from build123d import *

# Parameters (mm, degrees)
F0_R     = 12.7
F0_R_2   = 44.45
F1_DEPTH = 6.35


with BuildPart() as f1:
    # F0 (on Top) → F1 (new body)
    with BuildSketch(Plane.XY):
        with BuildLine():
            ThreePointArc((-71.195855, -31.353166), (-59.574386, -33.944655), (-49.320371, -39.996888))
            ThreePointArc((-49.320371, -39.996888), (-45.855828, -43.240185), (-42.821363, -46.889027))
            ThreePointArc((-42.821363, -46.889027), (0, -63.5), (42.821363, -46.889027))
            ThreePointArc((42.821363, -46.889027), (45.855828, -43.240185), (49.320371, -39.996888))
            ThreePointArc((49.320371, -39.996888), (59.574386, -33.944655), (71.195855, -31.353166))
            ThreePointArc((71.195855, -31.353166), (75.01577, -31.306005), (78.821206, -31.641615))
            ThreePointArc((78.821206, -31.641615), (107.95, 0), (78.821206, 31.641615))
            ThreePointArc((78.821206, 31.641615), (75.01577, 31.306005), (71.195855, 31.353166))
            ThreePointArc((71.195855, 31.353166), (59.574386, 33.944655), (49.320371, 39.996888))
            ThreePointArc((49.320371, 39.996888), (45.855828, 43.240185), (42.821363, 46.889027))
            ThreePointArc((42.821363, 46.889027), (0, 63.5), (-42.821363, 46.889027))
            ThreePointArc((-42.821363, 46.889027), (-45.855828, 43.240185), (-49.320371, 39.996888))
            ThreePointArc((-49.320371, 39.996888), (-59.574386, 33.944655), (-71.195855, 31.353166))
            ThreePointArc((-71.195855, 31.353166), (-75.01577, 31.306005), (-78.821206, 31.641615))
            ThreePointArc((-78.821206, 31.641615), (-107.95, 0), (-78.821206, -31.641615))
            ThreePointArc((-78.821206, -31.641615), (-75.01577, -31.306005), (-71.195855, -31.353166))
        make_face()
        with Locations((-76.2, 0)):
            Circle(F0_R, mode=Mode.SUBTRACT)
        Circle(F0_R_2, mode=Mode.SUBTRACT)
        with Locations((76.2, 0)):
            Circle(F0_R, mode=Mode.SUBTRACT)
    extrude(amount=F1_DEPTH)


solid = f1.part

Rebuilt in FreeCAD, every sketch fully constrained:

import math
import FreeCAD as App
import Part
import Sketcher
Q = App.Units.Quantity

doc = App.newDocument("Part")
params = doc.addObject("Spreadsheet::Sheet", "Params")
for row, (alias, value) in enumerate([
    ("sketch1_diameter", "1 in"),
    ("sketch1_diameter2", "1 in"),
    ("sketch1_diameter3", "3.5 in"),
    ("sketch1_radius", "2.5 in"),
    ("sketch1_radius2", "2.5 in"),
    ("pad1_length", "0.25 in"),
], start=1):
    params.set(f"A{row}", alias)
    params.set(f"B{row}", "=" + value)
    params.setAlias(f"B{row}", alias)

body = doc.addObject("PartDesign::Body", "Body")

# Sketch on XY plane
sketch1 = doc.addObject("Sketcher::SketchObject", "Sketch")
body.addObject(sketch1)
sketch1.AttachmentSupport = (doc.XY_Plane, [""])
sketch1.MapMode = "FlatFace"
sketch1.addGeometry(Part.ArcOfCircle(Part.Circle(App.Vector(-73.575566, -69.378765, 0), App.Vector(0, 0, 1), 38.099989), math.radians(50.459798), math.radians(86.418996)), False)
sketch1.addGeometry(Part.ArcOfCircle(Part.Circle(App.Vector(-73.575573, -69.378782, 0), App.Vector(0, 0, 1), 38.100007), math.radians(36.177035), math.radians(50.459806)), False)
sketch1.addGeometry(Part.ArcOfCircle(Part.Circle(App.Vector(0, -0.000001, 0), App.Vector(0, 0, 1), 63.499999), math.radians(-132.403863), math.radians(-47.596137)), False)
sketch1.addGeometry(Part.ArcOfCircle(Part.Circle(App.Vector(73.575573, -69.378782, 0), App.Vector(0, 0, 1), 38.100007), math.radians(129.540194), math.radians(143.822965)), False)
sketch1.addGeometry(Part.ArcOfCircle(Part.Circle(App.Vector(73.575566, -69.378765, 0), App.Vector(0, 0, 1), 38.099989), math.radians(93.581004), math.radians(129.540202)), False)
sketch1.addGeometry(Part.ArcOfCircle(Part.Circle(App.Vector(73.57557, -69.378699, 0), App.Vector(0, 0, 1), 38.099924), math.radians(82.086322), math.radians(93.581016)), False)
sketch1.addGeometry(Part.ArcOfCircle(Part.Circle(App.Vector(76.2, 0, 0), App.Vector(0, 0, 1), 31.75), math.radians(-85.264404), math.radians(85.264404)), False)
sketch1.addGeometry(Part.ArcOfCircle(Part.Circle(App.Vector(73.57557, 69.378699, 0), App.Vector(0, 0, 1), 38.099924), math.radians(-93.581016), math.radians(-82.086322)), False)
sketch1.addGeometry(Part.ArcOfCircle(Part.Circle(App.Vector(73.575566, 69.378765, 0), App.Vector(0, 0, 1), 38.099989), math.radians(-129.540202), math.radians(-93.581004)), False)
sketch1.addGeometry(Part.ArcOfCircle(Part.Circle(App.Vector(73.575573, 69.378782, 0), App.Vector(0, 0, 1), 38.100007), math.radians(-143.822965), math.radians(-129.540194)), False)
sketch1.addGeometry(Part.ArcOfCircle(Part.Circle(App.Vector(0, 0.000001, 0), App.Vector(0, 0, 1), 63.499999), math.radians(47.596137), math.radians(132.403863)), False)
sketch1.addGeometry(Part.ArcOfCircle(Part.Circle(App.Vector(-73.575573, 69.378782, 0), App.Vector(0, 0, 1), 38.100007), math.radians(-50.459806), math.radians(-36.177035)), False)
sketch1.addGeometry(Part.ArcOfCircle(Part.Circle(App.Vector(-73.575566, 69.378765, 0), App.Vector(0, 0, 1), 38.099989), math.radians(-86.418996), math.radians(-50.459798)), False)
sketch1.addGeometry(Part.ArcOfCircle(Part.Circle(App.Vector(-73.57557, 69.378699, 0), App.Vector(0, 0, 1), 38.099924), math.radians(-97.913678), math.radians(-86.418984)), False)
sketch1.addGeometry(Part.ArcOfCircle(Part.Circle(App.Vector(-76.2, 0, 0), App.Vector(0, 0, 1), 31.75), math.radians(94.735596), math.radians(265.264404)), False)
sketch1.addGeometry(Part.ArcOfCircle(Part.Circle(App.Vector(-73.57557, -69.378699, 0), App.Vector(0, 0, 1), 38.099924), math.radians(86.418984), math.radians(97.913678)), False)
sketch1.addGeometry(Part.Circle(App.Vector(-76.2, 0, 0), App.Vector(0, 0, 1), 12.7), False)
sketch1.addGeometry(Part.Circle(App.Vector(0, 0, 0), App.Vector(0, 0, 1), 44.45), False)
sketch1.addGeometry(Part.Circle(App.Vector(76.2, 0, 0), App.Vector(0, 0, 1), 12.7), False)
sketch1.addConstraint(Sketcher.Constraint("Coincident", 0, 1, 1, 2))
sketch1.addConstraint(Sketcher.Constraint("Coincident", 1, 1, 2, 1))
sketch1.addConstraint(Sketcher.Constraint("Coincident", 2, 2, 3, 2))
sketch1.addConstraint(Sketcher.Constraint("Coincident", 3, 1, 4, 2))
sketch1.addConstraint(Sketcher.Constraint("Coincident", 4, 1, 5, 2))
sketch1.addConstraint(Sketcher.Constraint("Coincident", 5, 1, 6, 1))
sketch1.addConstraint(Sketcher.Constraint("Coincident", 6, 2, 7, 2))
sketch1.addConstraint(Sketcher.Constraint("Coincident", 7, 1, 8, 2))
sketch1.addConstraint(Sketcher.Constraint("Coincident", 8, 1, 9, 2))
sketch1.addConstraint(Sketcher.Constraint("Coincident", 9, 1, 10, 1))
sketch1.addConstraint(Sketcher.Constraint("Coincident", 10, 2, 11, 2))
sketch1.addConstraint(Sketcher.Constraint("Coincident", 11, 1, 12, 2))
sketch1.addConstraint(Sketcher.Constraint("Coincident", 12, 1, 13, 2))
sketch1.addConstraint(Sketcher.Constraint("Coincident", 13, 1, 14, 1))
sketch1.addConstraint(Sketcher.Constraint("Coincident", 14, 2, 15, 2))
sketch1.addConstraint(Sketcher.Constraint("Coincident", 15, 1, 0, 2))
sketch1.addConstraint(Sketcher.Constraint("Coincident", 2, 3, -1, 1))
sketch1.addConstraint(Sketcher.Constraint("Coincident", 10, 3, -1, 1))
sketch1.addConstraint(Sketcher.Constraint("Coincident", 17, 3, -1, 1))
sketch1.addConstraint(Sketcher.Constraint("Coincident", 16, 3, 14, 3))
sketch1.addConstraint(Sketcher.Constraint("Coincident", 18, 3, 6, 3))
sketch1.addConstraint(Sketcher.Constraint("PointOnObject", 6, 3, -1))
sketch1.addConstraint(Sketcher.Constraint("PointOnObject", 14, 3, -1))
sketch1.addConstraint(Sketcher.Constraint("Diameter", 16, Q("1 in")))
sketch1.addConstraint(Sketcher.Constraint("Diameter", 18, Q("1 in")))
sketch1.addConstraint(Sketcher.Constraint("Diameter", 17, Q("3.5 in")))
sketch1.addConstraint(Sketcher.Constraint("Radius", 2, Q("2.5 in")))
sketch1.addConstraint(Sketcher.Constraint("Radius", 10, Q("2.5 in")))
sketch1.addConstraint(Sketcher.Constraint("Radius", 6, Q("1.25 in")))
sketch1.addConstraint(Sketcher.Constraint("Radius", 14, Q("1.25 in")))
sketch1.addConstraint(Sketcher.Constraint("DistanceX", -1, 1, 6, 3, Q("3 in")))
sketch1.addConstraint(Sketcher.Constraint("DistanceX", 14, 3, -1, 1, Q("3 in")))
sketch1.addConstraint(Sketcher.Constraint("Radius", 0, 38.099989))
sketch1.addConstraint(Sketcher.Constraint("Radius", 4, 38.099989))
sketch1.addConstraint(Sketcher.Constraint("Radius", 8, 38.099989))
sketch1.addConstraint(Sketcher.Constraint("Radius", 12, 38.099989))
sketch1.addConstraint(Sketcher.Constraint("Radius", 1, 38.100007))
sketch1.addConstraint(Sketcher.Constraint("Radius", 3, 38.100007))
sketch1.addConstraint(Sketcher.Constraint("Radius", 5, 38.099924))
sketch1.addConstraint(Sketcher.Constraint("Radius", 7, 38.099924))
sketch1.addConstraint(Sketcher.Constraint("Radius", 9, 38.100007))
sketch1.addConstraint(Sketcher.Constraint("Radius", 11, 38.100007))
sketch1.addConstraint(Sketcher.Constraint("Radius", 13, 38.099924))
sketch1.addConstraint(Sketcher.Constraint("Radius", 15, 38.099924))
sketch1.addConstraint(Sketcher.Constraint("DistanceY", 5, 3, -1, 1, 69.378699))
sketch1.addConstraint(Sketcher.Constraint("DistanceY", -1, 1, 7, 3, 69.378699))
sketch1.addConstraint(Sketcher.Constraint("DistanceY", -1, 1, 13, 3, 69.378699))
sketch1.addConstraint(Sketcher.Constraint("DistanceY", 15, 3, -1, 1, 69.378699))
sketch1.addConstraint(Sketcher.Constraint("DistanceX", 15, 3, 0, 1, 24.255199))
sketch1.addConstraint(Sketcher.Constraint("DistanceX", 3, 1, 5, 3, 24.255199))
sketch1.addConstraint(Sketcher.Constraint("DistanceY", 7, 1, 8, 3, 38.025599))
sketch1.addConstraint(Sketcher.Constraint("DistanceX", 8, 1, 7, 3, 24.255199))
sketch1.addConstraint(Sketcher.Constraint("DistanceX", 13, 3, 11, 1, 24.255199))
sketch1.addConstraint(Sketcher.Constraint("DistanceY", 1, 3, -1, 1, 69.378782))
sketch1.addConstraint(Sketcher.Constraint("DistanceY", 3, 3, -1, 1, 69.378782))
sketch1.addConstraint(Sketcher.Constraint("DistanceX", -1, 1, 5, 3, 73.57557))
sketch1.addConstraint(Sketcher.Constraint("DistanceX", -1, 1, 7, 3, 73.57557))
sketch1.addConstraint(Sketcher.Constraint("DistanceY", -1, 1, 9, 3, 69.378782))
sketch1.addConstraint(Sketcher.Constraint("DistanceY", -1, 1, 11, 3, 69.378782))
sketch1.addConstraint(Sketcher.Constraint("DistanceX", 13, 3, -1, 1, 73.57557))
sketch1.addConstraint(Sketcher.Constraint("DistanceX", 15, 3, -1, 1, 73.57557))
sketch1.addConstraint(Sketcher.Constraint("DistanceY", 0, 1, -1, 1, 39.996888))
sketch1.addConstraint(Sketcher.Constraint("DistanceY", -1, 1, 8, 1, 39.996888))
sketch1.addConstraint(Sketcher.Constraint("DistanceX", 0, 3, 3, 3, 147.151139))
sketch1.addConstraint(Sketcher.Constraint("DistanceX", 11, 3, 8, 3, 147.151139))
sketch1.addConstraint(Sketcher.Constraint("DistanceY", 3, 1, 4, 1, 8.643722))
sketch1.addConstraint(Sketcher.Constraint("DistanceY", 12, 1, 11, 1, 8.643722))
sketch1.addConstraint(Sketcher.Constraint("DistanceX", 14, 2, 15, 1, 7.625351))
sketch1.setExpression("Constraints[23]", "Params.sketch1_diameter")
sketch1.setExpression("Constraints[24]", "Params.sketch1_diameter2")
sketch1.setExpression("Constraints[25]", "Params.sketch1_diameter3")
sketch1.setExpression("Constraints[26]", "Params.sketch1_radius")
sketch1.setExpression("Constraints[27]", "Params.sketch1_radius2")
pad1 = doc.addObject("PartDesign::Pad", "Pad")
body.addObject(pad1)
pad1.Profile = sketch1
pad1.setExpression("Length", "Params.pad1_length")

doc.recompute()
